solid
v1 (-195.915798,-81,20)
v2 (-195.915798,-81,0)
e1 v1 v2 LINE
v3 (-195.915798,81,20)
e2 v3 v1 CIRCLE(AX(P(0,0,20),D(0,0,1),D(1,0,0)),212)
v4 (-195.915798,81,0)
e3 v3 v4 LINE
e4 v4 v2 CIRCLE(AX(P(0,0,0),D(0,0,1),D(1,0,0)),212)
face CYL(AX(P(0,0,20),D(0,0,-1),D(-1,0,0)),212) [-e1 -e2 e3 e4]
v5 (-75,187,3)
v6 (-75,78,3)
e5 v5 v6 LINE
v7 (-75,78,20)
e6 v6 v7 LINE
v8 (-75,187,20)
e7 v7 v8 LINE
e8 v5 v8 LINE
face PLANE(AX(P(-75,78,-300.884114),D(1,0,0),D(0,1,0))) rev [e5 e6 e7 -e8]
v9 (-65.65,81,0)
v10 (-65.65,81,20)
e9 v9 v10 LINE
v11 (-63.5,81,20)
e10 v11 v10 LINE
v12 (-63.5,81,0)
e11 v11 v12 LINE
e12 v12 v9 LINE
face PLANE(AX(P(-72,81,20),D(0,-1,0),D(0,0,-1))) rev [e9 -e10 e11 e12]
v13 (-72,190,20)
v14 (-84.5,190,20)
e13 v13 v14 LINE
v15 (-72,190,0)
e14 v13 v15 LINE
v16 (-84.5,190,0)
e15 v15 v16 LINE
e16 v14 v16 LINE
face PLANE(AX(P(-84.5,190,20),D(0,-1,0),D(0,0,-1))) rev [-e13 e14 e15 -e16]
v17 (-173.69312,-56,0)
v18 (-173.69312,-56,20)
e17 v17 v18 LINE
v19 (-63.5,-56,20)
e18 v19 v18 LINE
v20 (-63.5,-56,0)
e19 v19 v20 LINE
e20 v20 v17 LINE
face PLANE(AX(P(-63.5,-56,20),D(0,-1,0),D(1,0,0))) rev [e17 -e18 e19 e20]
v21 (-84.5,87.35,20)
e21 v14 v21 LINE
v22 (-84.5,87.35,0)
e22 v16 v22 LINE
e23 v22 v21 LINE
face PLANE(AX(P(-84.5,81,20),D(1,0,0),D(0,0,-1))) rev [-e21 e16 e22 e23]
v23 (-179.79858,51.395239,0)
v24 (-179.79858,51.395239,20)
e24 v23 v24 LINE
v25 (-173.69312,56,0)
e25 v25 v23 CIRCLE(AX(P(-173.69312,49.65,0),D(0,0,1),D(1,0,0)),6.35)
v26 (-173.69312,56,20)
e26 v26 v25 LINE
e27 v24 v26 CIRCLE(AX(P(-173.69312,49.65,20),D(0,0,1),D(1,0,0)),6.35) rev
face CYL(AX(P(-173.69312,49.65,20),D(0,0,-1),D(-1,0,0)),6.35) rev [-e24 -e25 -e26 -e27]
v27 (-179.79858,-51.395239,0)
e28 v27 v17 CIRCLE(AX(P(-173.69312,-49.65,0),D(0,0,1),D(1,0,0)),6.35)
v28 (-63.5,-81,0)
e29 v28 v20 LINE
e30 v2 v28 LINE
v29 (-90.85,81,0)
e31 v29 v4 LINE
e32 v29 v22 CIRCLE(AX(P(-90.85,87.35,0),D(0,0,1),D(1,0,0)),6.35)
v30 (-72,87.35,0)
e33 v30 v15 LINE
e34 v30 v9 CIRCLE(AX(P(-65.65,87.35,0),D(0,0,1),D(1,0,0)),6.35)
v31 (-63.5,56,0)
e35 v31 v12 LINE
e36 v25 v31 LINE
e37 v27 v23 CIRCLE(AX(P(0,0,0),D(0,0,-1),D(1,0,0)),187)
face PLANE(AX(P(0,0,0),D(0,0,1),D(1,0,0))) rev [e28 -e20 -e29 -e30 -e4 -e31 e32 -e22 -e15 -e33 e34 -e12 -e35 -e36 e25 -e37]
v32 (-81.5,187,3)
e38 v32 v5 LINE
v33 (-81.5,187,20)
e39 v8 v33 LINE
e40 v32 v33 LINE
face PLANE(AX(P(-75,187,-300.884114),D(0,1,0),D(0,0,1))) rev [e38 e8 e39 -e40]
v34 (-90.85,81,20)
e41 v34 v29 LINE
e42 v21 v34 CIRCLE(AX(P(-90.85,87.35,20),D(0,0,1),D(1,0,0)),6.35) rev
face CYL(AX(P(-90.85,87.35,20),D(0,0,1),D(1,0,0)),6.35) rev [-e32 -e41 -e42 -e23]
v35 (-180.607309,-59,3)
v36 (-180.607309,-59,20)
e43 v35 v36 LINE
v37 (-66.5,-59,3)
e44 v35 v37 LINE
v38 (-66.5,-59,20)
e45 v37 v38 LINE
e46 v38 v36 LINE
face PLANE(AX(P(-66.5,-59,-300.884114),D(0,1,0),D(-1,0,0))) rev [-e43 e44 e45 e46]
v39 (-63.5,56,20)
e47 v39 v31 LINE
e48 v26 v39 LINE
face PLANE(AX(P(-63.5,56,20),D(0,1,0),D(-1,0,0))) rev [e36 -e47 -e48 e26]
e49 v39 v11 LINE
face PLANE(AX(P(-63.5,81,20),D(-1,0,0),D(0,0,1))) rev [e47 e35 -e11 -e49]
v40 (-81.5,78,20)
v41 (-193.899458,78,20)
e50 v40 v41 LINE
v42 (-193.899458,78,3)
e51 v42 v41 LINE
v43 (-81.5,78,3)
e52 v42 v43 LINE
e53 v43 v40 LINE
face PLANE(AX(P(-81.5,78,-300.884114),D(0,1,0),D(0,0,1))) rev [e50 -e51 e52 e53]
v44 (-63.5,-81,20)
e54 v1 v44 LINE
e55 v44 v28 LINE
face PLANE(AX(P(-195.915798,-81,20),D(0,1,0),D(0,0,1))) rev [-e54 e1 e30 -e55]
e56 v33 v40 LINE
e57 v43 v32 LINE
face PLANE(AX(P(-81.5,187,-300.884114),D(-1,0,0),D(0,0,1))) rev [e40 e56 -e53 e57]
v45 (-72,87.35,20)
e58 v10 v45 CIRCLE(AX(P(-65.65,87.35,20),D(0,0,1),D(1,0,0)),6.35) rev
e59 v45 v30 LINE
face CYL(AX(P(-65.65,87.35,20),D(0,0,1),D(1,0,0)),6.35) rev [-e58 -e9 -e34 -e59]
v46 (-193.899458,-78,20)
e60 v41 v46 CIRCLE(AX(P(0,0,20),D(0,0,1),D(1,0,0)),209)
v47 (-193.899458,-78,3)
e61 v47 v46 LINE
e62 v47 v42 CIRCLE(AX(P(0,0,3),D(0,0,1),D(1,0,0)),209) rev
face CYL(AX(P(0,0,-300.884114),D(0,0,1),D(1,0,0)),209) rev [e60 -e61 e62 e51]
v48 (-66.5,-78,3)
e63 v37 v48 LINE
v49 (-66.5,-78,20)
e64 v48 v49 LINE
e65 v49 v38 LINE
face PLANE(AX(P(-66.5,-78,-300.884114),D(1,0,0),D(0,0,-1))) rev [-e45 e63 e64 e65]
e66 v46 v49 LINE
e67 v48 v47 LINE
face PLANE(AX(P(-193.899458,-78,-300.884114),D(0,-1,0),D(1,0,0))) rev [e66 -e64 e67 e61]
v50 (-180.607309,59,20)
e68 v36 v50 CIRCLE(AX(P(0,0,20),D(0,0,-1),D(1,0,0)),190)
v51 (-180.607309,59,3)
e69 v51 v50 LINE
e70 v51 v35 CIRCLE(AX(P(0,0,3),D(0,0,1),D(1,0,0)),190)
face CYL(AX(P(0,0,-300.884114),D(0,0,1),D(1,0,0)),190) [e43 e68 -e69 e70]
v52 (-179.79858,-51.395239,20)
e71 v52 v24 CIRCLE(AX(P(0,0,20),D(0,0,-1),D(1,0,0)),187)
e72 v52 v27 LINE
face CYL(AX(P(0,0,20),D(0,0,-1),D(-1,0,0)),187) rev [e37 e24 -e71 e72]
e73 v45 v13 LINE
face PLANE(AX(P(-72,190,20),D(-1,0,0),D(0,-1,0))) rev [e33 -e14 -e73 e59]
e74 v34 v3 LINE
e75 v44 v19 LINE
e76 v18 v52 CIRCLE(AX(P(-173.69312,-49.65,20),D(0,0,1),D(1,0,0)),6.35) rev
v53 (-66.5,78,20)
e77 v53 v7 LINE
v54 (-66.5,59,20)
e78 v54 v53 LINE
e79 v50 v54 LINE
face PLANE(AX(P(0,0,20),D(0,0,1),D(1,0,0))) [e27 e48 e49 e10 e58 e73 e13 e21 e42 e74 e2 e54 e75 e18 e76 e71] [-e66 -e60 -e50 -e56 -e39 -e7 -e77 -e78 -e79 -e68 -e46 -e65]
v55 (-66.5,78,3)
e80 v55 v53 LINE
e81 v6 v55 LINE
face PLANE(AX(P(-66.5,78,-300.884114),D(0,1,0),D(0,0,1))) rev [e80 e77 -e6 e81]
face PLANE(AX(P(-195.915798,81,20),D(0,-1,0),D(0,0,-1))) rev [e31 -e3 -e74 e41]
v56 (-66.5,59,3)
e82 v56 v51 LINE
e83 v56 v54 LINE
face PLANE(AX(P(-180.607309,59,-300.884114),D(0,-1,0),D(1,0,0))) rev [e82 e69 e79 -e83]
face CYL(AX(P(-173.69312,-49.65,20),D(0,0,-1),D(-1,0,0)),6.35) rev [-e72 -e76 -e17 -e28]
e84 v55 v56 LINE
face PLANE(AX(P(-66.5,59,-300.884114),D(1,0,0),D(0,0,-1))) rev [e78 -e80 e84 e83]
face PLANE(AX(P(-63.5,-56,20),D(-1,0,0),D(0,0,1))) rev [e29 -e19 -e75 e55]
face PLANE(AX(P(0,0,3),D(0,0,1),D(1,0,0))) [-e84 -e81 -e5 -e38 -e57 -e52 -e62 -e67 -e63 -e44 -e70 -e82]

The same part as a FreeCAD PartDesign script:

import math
import FreeCAD as App
import Part
import Sketcher
from FreeCAD import Vector
Q = App.Units.Quantity


def edges_at(feature, points):
    """Names of the edges that pass closest to the given points."""
    edges = feature.Shape.Edges
    near = lambda p: min(range(len(edges)), key=lambda i: edges[i].distToShape(Part.Vertex(*p))[0])
    return sorted({f"Edge{near(p) + 1}" for p in points})

doc = App.newDocument("Part")
params = doc.addObject("Spreadsheet::Sheet", "Params")
for row, (alias, value) in enumerate([
    ("sketch1_radius", "212 mm"),
    ("sketch1_radius2", "187 mm"),
    ("sketch1_height", "25 mm"),
    ("sketch1_height2", "109 mm"),
    ("sketch1_width", "8.5 mm"),
    ("pad1_length", "20 mm"),
    ("sketch2_radius", "209 mm"),
    ("sketch2_radius2", "190 mm"),
    ("sketch2_height", "109 mm"),
    ("sketch2_height2", "19 mm"),
    ("sketch2_width", "8.5 mm"),
    ("pocket1_length", "17 mm"),
    ("fillet_radius", "6.35 mm"),
], start=1):
    params.set(f"A{row}", alias)
    params.set(f"B{row}", "=" + value)
    params.setAlias(f"B{row}", alias)

body = doc.addObject("PartDesign::Body", "Body")

# Sketch on XY plane
sketch1 = body.newObject("Sketcher::SketchObject", "Sketch")
sketch1.AttachmentSupport = (doc.getObject("XY_Plane"), [""])
sketch1.MapMode = "FlatFace"
sketch1.addGeometry([
    Part.LineSegment(Vector(-84.5, 81, 0), Vector(-195.915798, 81, 0)),  # 0
    Part.ArcOfCircle(Part.Circle(Vector(0, 0, 0), Vector(0, 0, 1), 212), math.radians(157.537698), math.radians(202.462302)),  # 1
    Part.LineSegment(Vector(-195.915798, -81, 0), Vector(-63.5, -81, 0)),  # 2
    Part.LineSegment(Vector(-63.5, -81, 0), Vector(-63.5, -56, 0)),  # 3
    Part.LineSegment(Vector(-63.5, -56, 0), Vector(-178.418048, -56, 0)),  # 4
    Part.ArcOfCircle(Part.Circle(Vector(0, 0, 0), Vector(0, 0, 1), 187), math.radians(162.574513), math.radians(197.425487)),  # 5
    Part.LineSegment(Vector(-178.418048, 56, 0), Vector(-63.5, 56, 0)),  # 6
    Part.LineSegment(Vector(-63.5, 56, 0), Vector(-63.5, 81, 0)),  # 7
    Part.LineSegment(Vector(-63.5, 81, 0), Vector(-72, 81, 0)),  # 8
    Part.LineSegment(Vector(-72, 81, 0), Vector(-72, 190, 0)),  # 9
    Part.LineSegment(Vector(-72, 190, 0), Vector(-84.5, 190, 0)),  # 10
    Part.LineSegment(Vector(-84.5, 190, 0), Vector(-84.5, 81, 0)),  # 11
], False)
sketch1.addConstraint([
    Sketcher.Constraint("Coincident", 0, 2, 1, 1),
    Sketcher.Constraint("Coincident", 1, 2, 2, 1),
    Sketcher.Constraint("Coincident", 2, 2, 3, 1),
    Sketcher.Constraint("Coincident", 3, 2, 4, 1),
    Sketcher.Constraint("Coincident", 4, 2, 5, 2),
    Sketcher.Constraint("Coincident", 5, 1, 6, 1),
    Sketcher.Constraint("Coincident", 6, 2, 7, 1),
    Sketcher.Constraint("Coincident", 7, 2, 8, 1),
    Sketcher.Constraint("Coincident", 8, 2, 9, 1),
    Sketcher.Constraint("Coincident", 9, 2, 10, 1),
    Sketcher.Constraint("Coincident", 10, 2, 11, 1),
    Sketcher.Constraint("Coincident", 11, 2, 0, 1),
    Sketcher.Constraint("Horizontal", 0),
    Sketcher.Constraint("Horizontal", 2),
    Sketcher.Constraint("Vertical", 3),
    Sketcher.Constraint("Horizontal", 4),
    Sketcher.Constraint("Horizontal", 6),
    Sketcher.Constraint("Vertical", 7),
    Sketcher.Constraint("Horizontal", 8),
    Sketcher.Constraint("Vertical", 9),
    Sketcher.Constraint("Horizontal", 10),
    Sketcher.Constraint("Vertical", 11),
    Sketcher.Constraint("Coincident", 1, 3, -1, 1),
    Sketcher.Constraint("Coincident", 5, 3, -1, 1),
    Sketcher.Constraint("Symmetric", 3, 2, 6, 2, -1),
    Sketcher.Constraint("Horizontal", 0, 2, 7, 2),
    Sketcher.Constraint("Vertical", 0, 2, 1, 2),
    Sketcher.Constraint("Radius", 1, Q("212 mm")),
    Sketcher.Constraint("Radius", 5, Q("187 mm")),
    Sketcher.Constraint("DistanceY", 3, 1, 3, 2, Q("25 mm")),
    Sketcher.Constraint("DistanceY", 9, 1, 9, 2, Q("109 mm")),
    Sketcher.Constraint("DistanceX", 8, 2, 8, 1, Q("8.5 mm")),
    Sketcher.Constraint("DistanceX", 10, 2, 10, 1, Q("12.5 mm")),
    Sketcher.Constraint("DistanceY", -1, 1, 0, 2, Q("81 mm")),
    Sketcher.Constraint("DistanceX", 8, 2, -1, 1, Q("72 mm")),
])
sketch1.setExpression("Constraints[27]", "Params.sketch1_radius")
sketch1.setExpression("Constraints[28]", "Params.sketch1_radius2")
sketch1.setExpression("Constraints[29]", "Params.sketch1_height")
sketch1.setExpression("Constraints[30]", "Params.sketch1_height2")
sketch1.setExpression("Constraints[31]", "Params.sketch1_width")
pad1 = body.newObject("PartDesign::Pad", "Pad")
pad1.Profile = sketch1
pad1.setExpression("Length", "Params.pad1_length")

# Sketch on XY plane
sketch2 = body.newObject("Sketcher::SketchObject", "Sketch001")
sketch2.AttachmentSupport = (doc.getObject("XY_Plane"), [""])
sketch2.MapMode = "FlatFace"
sketch2.AttachmentOffset = App.Placement(Vector(0, 0, 20), App.Rotation())
sketch2.addGeometry([
    Part.LineSegment(Vector(-66.5, 78, 0), Vector(-75, 78, 0)),  # 0
    Part.LineSegment(Vector(-75, 78, 0), Vector(-75, 187, 0)),  # 1
    Part.LineSegment(Vector(-75, 187, 0), Vector(-81.5, 187, 0)),  # 2
    Part.LineSegment(Vector(-81.5, 187, 0), Vector(-81.5, 78, 0)),  # 3
    Part.LineSegment(Vector(-81.5, 78, 0), Vector(-193.899458, 78, 0)),  # 4
    Part.ArcOfCircle(Part.Circle(Vector(0, 0, 0), Vector(0, 0, 1), 209), math.radians(158.08654), math.radians(201.91346)),  # 5
    Part.LineSegment(Vector(-193.899458, -78, 0), Vector(-66.5, -78, 0)),  # 6
    Part.LineSegment(Vector(-66.5, -78, 0), Vector(-66.5, -59, 0)),  # 7
    Part.LineSegment(Vector(-66.5, -59, 0), Vector(-180.607309, -59, 0)),  # 8
    Part.ArcOfCircle(Part.Circle(Vector(0, 0, 0), Vector(0, 0, 1), 190), math.radians(161.909048), math.radians(198.090952)),  # 9
    Part.LineSegment(Vector(-180.607309, 59, 0), Vector(-66.5, 59, 0)),  # 10
    Part.LineSegment(Vector(-66.5, 59, 0), Vector(-66.5, 78, 0)),  # 11
], False)
sketch2.addConstraint([
    Sketcher.Constraint("Coincident", 0, 2, 1, 1),
    Sketcher.Constraint("Coincident", 1, 2, 2, 1),
    Sketcher.Constraint("Coincident", 2, 2, 3, 1),
    Sketcher.Constraint("Coincident", 3, 2, 4, 1),
    Sketcher.Constraint("Coincident", 4, 2, 5, 1),
    Sketcher.Constraint("Coincident", 5, 2, 6, 1),
    Sketcher.Constraint("Coincident", 6, 2, 7, 1),
    Sketcher.Constraint("Coincident", 7, 2, 8, 1),
    Sketcher.Constraint("Coincident", 8, 2, 9, 2),
    Sketcher.Constraint("Coincident", 9, 1, 10, 1),
    Sketcher.Constraint("Coincident", 10, 2, 11, 1),
    Sketcher.Constraint("Coincident", 11, 2, 0, 1),
    Sketcher.Constraint("Horizontal", 0),
    Sketcher.Constraint("Vertical", 1),
    Sketcher.Constraint("Horizontal", 2),
    Sketcher.Constraint("Vertical", 3),
    Sketcher.Constraint("Horizontal", 4),
    Sketcher.Constraint("Horizontal", 6),
    Sketcher.Constraint("Vertical", 7),
    Sketcher.Constraint("Horizontal", 8),
    Sketcher.Constraint("Horizontal", 10),
    Sketcher.Constraint("Vertical", 11),
    Sketcher.Constraint("Coincident", 5, 3, -1, 1),
    Sketcher.Constraint("Coincident", 9, 3, -1, 1),
    Sketcher.Constraint("Symmetric", 7, 2, 10, 2, -1),
    Sketcher.Constraint("Horizontal", 0, 2, 3, 2),
    Sketcher.Constraint("Vertical", 4, 2, 5, 2),
    Sketcher.Constraint("Radius", 5, Q("209 mm")),
    Sketcher.Constraint("Radius", 9, Q("190 mm")),
    Sketcher.Constraint("DistanceY", 1, 1, 1, 2, Q("109 mm")),
    Sketcher.Constraint("DistanceY", 7, 1, 7, 2, Q("19 mm")),
    Sketcher.Constraint("DistanceX", 0, 2, 0, 1, Q("8.5 mm")),
    Sketcher.Constraint("DistanceX", 2, 2, 2, 1, Q("6.5 mm")),
    Sketcher.Constraint("DistanceX", 0, 2, -1, 1, Q("75 mm")),
    Sketcher.Constraint("DistanceY", -1, 1, 0, 2, Q("78 mm")),
])
sketch2.setExpression("Constraints[27]", "Params.sketch2_radius")
sketch2.setExpression("Constraints[28]", "Params.sketch2_radius2")
sketch2.setExpression("Constraints[29]", "Params.sketch2_height")
sketch2.setExpression("Constraints[30]", "Params.sketch2_height2")
sketch2.setExpression("Constraints[31]", "Params.sketch2_width")
pocket1 = body.newObject("PartDesign::Pocket", "Pocket")
pocket1.Profile = sketch2
pocket1.setExpression("Length", "Params.pocket1_length")
doc.recompute()

fillet = body.newObject("PartDesign::Fillet", "Fillet")
fillet.Base = (pocket1, edges_at(pocket1, [
    (-178.418, 56, 10),
    (-178.418, -56, 10),
    (-84.5, 81, 10),
    (-72, 81, 10),
]))
fillet.setExpression("Radius", "Params.fillet_radius")

doc.recompute()
